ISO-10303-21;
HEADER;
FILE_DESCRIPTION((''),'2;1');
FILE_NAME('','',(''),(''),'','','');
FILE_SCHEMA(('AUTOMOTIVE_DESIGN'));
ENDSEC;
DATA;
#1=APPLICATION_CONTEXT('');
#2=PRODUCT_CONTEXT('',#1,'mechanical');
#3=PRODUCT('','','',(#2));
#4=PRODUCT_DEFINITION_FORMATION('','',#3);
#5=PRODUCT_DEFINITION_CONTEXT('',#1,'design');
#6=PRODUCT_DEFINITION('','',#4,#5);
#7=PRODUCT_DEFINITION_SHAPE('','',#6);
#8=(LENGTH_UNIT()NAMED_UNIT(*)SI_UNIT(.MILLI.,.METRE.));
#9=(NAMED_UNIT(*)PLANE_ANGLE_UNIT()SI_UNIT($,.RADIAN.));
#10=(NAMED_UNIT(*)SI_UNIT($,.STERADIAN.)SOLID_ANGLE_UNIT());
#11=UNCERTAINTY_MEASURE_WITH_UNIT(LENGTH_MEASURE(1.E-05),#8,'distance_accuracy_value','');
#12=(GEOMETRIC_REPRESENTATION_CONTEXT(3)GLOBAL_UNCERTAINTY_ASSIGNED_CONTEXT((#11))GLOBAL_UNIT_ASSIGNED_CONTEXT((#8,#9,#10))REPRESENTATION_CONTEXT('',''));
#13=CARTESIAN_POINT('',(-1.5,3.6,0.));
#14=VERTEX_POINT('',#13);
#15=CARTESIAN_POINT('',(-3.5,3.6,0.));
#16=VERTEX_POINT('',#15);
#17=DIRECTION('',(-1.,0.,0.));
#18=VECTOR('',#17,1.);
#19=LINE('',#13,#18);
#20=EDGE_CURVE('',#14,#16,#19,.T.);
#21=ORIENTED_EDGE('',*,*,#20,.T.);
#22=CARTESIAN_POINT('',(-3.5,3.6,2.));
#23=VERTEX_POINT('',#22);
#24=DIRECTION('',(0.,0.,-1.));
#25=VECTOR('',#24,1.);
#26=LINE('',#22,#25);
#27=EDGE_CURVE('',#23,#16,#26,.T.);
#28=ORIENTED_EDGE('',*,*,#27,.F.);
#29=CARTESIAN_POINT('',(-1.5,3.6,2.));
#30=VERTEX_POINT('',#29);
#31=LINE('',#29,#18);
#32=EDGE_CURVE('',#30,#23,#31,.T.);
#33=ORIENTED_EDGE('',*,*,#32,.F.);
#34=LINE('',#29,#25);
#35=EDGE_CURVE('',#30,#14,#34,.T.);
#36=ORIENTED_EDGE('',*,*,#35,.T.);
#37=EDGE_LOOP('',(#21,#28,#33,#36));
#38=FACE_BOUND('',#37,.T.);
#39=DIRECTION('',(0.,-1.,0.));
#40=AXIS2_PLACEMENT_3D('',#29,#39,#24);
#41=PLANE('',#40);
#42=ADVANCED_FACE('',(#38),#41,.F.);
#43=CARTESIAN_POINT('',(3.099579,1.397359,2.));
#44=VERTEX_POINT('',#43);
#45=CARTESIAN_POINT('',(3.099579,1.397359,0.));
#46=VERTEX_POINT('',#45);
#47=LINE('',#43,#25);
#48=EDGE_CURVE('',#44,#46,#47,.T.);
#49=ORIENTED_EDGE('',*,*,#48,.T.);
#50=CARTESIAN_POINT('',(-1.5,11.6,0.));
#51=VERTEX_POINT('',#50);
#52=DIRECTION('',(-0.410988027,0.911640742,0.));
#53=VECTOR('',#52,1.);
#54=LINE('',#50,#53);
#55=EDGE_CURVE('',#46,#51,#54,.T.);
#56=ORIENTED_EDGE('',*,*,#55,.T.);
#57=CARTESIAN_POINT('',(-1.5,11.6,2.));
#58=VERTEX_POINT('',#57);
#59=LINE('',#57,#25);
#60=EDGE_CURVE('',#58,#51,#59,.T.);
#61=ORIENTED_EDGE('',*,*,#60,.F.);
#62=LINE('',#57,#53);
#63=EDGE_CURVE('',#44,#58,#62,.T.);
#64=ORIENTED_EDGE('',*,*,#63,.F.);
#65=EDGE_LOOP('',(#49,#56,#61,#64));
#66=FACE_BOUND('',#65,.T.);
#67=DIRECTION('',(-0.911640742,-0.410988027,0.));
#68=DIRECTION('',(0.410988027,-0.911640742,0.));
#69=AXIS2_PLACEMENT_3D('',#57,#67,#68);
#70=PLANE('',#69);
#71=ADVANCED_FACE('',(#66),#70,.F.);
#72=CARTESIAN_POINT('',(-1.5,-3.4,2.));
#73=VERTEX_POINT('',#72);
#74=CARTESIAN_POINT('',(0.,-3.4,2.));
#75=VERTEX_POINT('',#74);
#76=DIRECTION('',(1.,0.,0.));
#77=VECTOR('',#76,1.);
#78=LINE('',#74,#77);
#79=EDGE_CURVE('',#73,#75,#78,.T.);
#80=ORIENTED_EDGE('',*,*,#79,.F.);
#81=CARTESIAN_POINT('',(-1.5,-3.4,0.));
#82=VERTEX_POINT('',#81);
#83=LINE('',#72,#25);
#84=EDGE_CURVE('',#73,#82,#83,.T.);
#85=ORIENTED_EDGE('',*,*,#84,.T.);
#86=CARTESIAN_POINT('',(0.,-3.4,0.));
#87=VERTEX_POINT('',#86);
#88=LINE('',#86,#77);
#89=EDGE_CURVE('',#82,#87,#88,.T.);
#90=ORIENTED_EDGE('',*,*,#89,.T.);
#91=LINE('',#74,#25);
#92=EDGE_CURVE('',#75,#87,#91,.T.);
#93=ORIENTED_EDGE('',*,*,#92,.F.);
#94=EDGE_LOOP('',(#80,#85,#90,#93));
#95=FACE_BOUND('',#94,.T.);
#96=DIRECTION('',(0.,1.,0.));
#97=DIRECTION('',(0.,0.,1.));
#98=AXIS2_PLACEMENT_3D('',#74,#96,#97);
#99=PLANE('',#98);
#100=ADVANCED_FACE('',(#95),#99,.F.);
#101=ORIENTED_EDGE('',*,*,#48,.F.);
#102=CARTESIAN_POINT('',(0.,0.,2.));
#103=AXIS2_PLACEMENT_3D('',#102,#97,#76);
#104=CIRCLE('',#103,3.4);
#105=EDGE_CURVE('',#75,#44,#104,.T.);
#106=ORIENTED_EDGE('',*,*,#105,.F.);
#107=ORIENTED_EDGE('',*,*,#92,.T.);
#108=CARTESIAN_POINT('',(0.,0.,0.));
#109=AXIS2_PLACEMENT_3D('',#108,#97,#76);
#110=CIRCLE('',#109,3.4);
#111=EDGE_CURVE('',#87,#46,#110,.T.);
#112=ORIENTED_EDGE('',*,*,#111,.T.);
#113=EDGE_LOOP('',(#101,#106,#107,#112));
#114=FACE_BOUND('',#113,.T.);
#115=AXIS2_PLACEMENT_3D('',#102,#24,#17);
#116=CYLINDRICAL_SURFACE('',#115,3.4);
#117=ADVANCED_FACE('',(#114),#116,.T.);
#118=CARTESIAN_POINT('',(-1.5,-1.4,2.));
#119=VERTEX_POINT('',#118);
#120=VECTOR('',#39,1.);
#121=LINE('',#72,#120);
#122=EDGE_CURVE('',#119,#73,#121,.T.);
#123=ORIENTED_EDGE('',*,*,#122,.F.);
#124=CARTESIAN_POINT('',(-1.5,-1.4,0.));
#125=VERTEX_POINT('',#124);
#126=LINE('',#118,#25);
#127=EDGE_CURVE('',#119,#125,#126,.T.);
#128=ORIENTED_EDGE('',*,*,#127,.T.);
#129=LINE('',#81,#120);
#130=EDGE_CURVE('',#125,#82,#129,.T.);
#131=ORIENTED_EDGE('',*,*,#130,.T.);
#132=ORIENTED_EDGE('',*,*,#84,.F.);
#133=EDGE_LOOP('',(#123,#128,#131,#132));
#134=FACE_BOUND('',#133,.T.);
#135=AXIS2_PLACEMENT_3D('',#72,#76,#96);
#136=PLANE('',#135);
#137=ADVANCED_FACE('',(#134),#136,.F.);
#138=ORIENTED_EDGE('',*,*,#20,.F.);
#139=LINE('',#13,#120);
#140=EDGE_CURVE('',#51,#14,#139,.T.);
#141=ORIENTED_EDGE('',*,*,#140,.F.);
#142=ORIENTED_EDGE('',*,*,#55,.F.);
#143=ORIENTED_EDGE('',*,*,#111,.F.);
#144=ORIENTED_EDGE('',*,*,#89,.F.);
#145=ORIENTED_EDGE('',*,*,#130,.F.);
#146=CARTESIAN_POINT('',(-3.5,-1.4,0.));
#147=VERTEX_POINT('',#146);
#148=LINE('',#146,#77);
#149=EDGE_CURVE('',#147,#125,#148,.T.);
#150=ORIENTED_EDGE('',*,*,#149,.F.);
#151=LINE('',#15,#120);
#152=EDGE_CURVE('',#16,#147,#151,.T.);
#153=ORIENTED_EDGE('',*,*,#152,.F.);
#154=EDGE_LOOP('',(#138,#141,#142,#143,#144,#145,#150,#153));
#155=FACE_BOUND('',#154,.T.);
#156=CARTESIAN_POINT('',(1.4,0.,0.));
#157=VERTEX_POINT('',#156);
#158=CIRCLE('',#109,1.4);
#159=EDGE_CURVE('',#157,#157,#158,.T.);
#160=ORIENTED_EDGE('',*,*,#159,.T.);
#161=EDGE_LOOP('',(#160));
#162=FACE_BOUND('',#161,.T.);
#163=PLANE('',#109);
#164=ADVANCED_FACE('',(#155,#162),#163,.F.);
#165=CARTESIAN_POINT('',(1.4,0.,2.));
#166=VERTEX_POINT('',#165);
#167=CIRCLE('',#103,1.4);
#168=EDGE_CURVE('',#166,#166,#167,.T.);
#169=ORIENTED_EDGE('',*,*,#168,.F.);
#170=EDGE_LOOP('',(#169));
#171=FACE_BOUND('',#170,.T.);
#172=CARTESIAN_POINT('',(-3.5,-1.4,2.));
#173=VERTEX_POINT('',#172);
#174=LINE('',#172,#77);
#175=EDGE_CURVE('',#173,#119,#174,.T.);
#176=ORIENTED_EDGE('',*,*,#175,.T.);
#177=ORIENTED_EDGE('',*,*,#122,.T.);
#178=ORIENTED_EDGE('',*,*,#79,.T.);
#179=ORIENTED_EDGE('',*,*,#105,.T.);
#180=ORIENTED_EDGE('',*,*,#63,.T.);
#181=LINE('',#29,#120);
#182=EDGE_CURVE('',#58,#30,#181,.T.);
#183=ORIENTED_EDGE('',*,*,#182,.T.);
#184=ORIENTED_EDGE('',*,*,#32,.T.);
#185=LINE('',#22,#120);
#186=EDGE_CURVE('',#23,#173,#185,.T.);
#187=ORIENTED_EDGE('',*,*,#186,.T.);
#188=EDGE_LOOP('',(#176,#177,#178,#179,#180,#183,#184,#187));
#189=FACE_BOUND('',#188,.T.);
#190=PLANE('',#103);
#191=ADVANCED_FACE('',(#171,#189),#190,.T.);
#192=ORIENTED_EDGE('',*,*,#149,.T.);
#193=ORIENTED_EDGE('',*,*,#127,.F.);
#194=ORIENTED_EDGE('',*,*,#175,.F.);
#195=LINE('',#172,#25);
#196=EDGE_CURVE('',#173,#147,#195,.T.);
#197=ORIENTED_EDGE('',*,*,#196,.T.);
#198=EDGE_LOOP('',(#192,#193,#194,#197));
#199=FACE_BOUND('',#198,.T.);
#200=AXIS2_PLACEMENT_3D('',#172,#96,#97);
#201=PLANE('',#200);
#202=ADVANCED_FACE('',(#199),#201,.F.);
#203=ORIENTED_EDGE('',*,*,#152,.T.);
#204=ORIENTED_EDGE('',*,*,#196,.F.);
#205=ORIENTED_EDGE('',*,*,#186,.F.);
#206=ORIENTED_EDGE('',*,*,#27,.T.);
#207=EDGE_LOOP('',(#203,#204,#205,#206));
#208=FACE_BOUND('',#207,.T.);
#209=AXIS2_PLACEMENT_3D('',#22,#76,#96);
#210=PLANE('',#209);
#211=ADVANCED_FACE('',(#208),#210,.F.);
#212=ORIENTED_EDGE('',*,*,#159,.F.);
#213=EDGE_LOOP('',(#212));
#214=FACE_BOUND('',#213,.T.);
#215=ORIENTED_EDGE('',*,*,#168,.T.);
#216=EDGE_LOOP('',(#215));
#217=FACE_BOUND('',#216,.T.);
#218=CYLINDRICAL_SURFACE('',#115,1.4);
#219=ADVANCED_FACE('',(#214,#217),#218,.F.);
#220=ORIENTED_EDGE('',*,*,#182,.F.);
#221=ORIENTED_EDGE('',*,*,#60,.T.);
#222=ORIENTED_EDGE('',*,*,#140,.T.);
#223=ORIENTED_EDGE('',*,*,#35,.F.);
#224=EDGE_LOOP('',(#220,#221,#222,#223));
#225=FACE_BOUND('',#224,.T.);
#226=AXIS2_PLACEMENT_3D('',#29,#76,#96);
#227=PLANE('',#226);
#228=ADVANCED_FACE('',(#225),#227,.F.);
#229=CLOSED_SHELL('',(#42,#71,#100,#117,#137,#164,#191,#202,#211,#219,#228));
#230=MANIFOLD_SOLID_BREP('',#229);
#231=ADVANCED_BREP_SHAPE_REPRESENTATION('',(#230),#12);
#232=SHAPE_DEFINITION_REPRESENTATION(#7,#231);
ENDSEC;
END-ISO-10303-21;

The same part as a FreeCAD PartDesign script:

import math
import FreeCAD as App
import Part
import Sketcher
from FreeCAD import Vector

doc = App.newDocument("Part")
body = doc.addObject("PartDesign::Body", "Body")

# Sketch on XY plane
sketch1 = body.newObject("Sketcher::SketchObject", "Sketch")
sketch1.AttachmentSupport = (doc.getObject("XY_Plane"), [""])
sketch1.MapMode = "FlatFace"
sketch1.addGeometry(Part.LineSegment(Vector(-1.5, -1.4, 0), Vector(-1.5, -3.4, 0)), False)
sketch1.addGeometry(Part.LineSegment(Vector(-1.5, -3.4, 0), Vector(0, -3.4, 0)), False)
sketch1.addGeometry(Part.ArcOfCircle(Part.Circle(Vector(0, 0, 0), Vector(0, 0, 1), 3.4), math.radians(-90), math.radians(24.266916)), False)
sketch1.addGeometry(Part.LineSegment(Vector(3.099579, 1.397359, 0), Vector(-1.5, 11.6, 0)), False)
sketch1.addGeometry(Part.LineSegment(Vector(-1.5, 11.6, 0), Vector(-1.5, 3.6, 0)), False)
sketch1.addGeometry(Part.LineSegment(Vector(-1.5, 3.6, 0), Vector(-3.5, 3.6, 0)), False)
sketch1.addGeometry(Part.LineSegment(Vector(-3.5, 3.6, 0), Vector(-3.5, -1.4, 0)), False)
sketch1.addGeometry(Part.LineSegment(Vector(-3.5, -1.4, 0), Vector(-1.5, -1.4, 0)), False)
sketch1.addGeometry(Part.Circle(Vector(0, 0, 0), Vector(0, 0, 1), 1.4), False)
sketch1.addConstraint(Sketcher.Constraint("Coincident", 0, 2, 1, 1))
sketch1.addConstraint(Sketcher.Constraint("Tangent", 1, 2, 2, 1))
sketch1.addConstraint(Sketcher.Constraint("Tangent", 2, 2, 3, 1))
sketch1.addConstraint(Sketcher.Constraint("Coincident", 3, 2, 4, 1))
sketch1.addConstraint(Sketcher.Constraint("Coincident", 4, 2, 5, 1))
sketch1.addConstraint(Sketcher.Constraint("Coincident", 5, 2, 6, 1))
sketch1.addConstraint(Sketcher.Constraint("Coincident", 6, 2, 7, 1))
sketch1.addConstraint(Sketcher.Constraint("Coincident", 7, 2, 0, 1))
sketch1.addConstraint(Sketcher.Constraint("Vertical", 0))
sketch1.addConstraint(Sketcher.Constraint("Horizontal", 1))
sketch1.addConstraint(Sketcher.Constraint("Vertical", 4))
sketch1.addConstraint(Sketcher.Constraint("Horizontal", 5))
sketch1.addConstraint(Sketcher.Constraint("Vertical", 6))
sketch1.addConstraint(Sketcher.Constraint("Horizontal", 7))
sketch1.addConstraint(Sketcher.Constraint("Coincident", 2, 3, -1, 1))
sketch1.addConstraint(Sketcher.Constraint("Coincident", 8, 3, -1, 1))
sketch1.addConstraint(Sketcher.Constraint("Vertical", 0, 2, 3, 2))
sketch1.addConstraint(Sketcher.Constraint("Equal", 7, 0))
sketch1.addConstraint(Sketcher.Constraint("Diameter", 8, 2.8))
sketch1.addConstraint(Sketcher.Constraint("Radius", 2, 3.4))
sketch1.addConstraint(Sketcher.Constraint("DistanceX", 5, 2, 5, 1, 2.0))
sketch1.addConstraint(Sketcher.Constraint("DistanceY", 4, 2, 4, 1, 8.0))
sketch1.addConstraint(Sketcher.Constraint("DistanceY", 6, 2, 6, 1, 5.0))
sketch1.addConstraint(Sketcher.Constraint("DistanceX", 1, 1, 1, 2, 1.5))
pad1 = body.newObject("PartDesign::Pad", "Pad")
pad1.Profile = sketch1
pad1.Length = 2

doc.recompute()
